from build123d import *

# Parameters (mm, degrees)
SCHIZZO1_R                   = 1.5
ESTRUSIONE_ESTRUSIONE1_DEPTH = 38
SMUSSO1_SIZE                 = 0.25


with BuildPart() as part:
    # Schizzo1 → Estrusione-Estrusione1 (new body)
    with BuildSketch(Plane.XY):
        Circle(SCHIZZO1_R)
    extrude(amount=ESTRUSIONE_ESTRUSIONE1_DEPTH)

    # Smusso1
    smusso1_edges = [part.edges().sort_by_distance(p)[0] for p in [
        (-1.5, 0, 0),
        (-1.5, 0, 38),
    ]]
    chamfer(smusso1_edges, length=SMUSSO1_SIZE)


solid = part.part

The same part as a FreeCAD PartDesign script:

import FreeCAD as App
import Part
import Sketcher
from FreeCAD import Vector


def edges_at(feature, points):
    """Names of the edges that pass closest to the given points."""
    edges = feature.Shape.Edges
    near = lambda p: min(range(len(edges)), key=lambda i: edges[i].distToShape(Part.Vertex(*p))[0])
    return sorted({f"Edge{near(p) + 1}" for p in points})

doc = App.newDocument("Part")
body = doc.addObject("PartDesign::Body", "Body")

# Sketch on XY plane
sketch1 = doc.addObject("Sketcher::SketchObject", "Sketch")
body.addObject(sketch1)
sketch1.AttachmentSupport = (doc.XY_Plane, [""])
sketch1.MapMode = "FlatFace"
sketch1.addGeometry(Part.Circle(Vector(0, 0, 0), Vector(0, 0, 1), 1.5), False)
sketch1.addConstraint([
    Sketcher.Constraint("Coincident", 0, 3, -1, 1),
    Sketcher.Constraint("Diameter", 0, 3.0),
])
pad1 = doc.addObject("PartDesign::Pad", "Pad")
body.addObject(pad1)
pad1.Profile = sketch1
pad1.Length = 38
doc.recompute()

chamfer = doc.addObject("PartDesign::Chamfer", "Chamfer")
body.addObject(chamfer)
chamfer.Base = (pad1, edges_at(pad1, [(-1.5, 0, 0), (-1.5, 0, 38)]))
chamfer.Size = 0.25

doc.recompute()
